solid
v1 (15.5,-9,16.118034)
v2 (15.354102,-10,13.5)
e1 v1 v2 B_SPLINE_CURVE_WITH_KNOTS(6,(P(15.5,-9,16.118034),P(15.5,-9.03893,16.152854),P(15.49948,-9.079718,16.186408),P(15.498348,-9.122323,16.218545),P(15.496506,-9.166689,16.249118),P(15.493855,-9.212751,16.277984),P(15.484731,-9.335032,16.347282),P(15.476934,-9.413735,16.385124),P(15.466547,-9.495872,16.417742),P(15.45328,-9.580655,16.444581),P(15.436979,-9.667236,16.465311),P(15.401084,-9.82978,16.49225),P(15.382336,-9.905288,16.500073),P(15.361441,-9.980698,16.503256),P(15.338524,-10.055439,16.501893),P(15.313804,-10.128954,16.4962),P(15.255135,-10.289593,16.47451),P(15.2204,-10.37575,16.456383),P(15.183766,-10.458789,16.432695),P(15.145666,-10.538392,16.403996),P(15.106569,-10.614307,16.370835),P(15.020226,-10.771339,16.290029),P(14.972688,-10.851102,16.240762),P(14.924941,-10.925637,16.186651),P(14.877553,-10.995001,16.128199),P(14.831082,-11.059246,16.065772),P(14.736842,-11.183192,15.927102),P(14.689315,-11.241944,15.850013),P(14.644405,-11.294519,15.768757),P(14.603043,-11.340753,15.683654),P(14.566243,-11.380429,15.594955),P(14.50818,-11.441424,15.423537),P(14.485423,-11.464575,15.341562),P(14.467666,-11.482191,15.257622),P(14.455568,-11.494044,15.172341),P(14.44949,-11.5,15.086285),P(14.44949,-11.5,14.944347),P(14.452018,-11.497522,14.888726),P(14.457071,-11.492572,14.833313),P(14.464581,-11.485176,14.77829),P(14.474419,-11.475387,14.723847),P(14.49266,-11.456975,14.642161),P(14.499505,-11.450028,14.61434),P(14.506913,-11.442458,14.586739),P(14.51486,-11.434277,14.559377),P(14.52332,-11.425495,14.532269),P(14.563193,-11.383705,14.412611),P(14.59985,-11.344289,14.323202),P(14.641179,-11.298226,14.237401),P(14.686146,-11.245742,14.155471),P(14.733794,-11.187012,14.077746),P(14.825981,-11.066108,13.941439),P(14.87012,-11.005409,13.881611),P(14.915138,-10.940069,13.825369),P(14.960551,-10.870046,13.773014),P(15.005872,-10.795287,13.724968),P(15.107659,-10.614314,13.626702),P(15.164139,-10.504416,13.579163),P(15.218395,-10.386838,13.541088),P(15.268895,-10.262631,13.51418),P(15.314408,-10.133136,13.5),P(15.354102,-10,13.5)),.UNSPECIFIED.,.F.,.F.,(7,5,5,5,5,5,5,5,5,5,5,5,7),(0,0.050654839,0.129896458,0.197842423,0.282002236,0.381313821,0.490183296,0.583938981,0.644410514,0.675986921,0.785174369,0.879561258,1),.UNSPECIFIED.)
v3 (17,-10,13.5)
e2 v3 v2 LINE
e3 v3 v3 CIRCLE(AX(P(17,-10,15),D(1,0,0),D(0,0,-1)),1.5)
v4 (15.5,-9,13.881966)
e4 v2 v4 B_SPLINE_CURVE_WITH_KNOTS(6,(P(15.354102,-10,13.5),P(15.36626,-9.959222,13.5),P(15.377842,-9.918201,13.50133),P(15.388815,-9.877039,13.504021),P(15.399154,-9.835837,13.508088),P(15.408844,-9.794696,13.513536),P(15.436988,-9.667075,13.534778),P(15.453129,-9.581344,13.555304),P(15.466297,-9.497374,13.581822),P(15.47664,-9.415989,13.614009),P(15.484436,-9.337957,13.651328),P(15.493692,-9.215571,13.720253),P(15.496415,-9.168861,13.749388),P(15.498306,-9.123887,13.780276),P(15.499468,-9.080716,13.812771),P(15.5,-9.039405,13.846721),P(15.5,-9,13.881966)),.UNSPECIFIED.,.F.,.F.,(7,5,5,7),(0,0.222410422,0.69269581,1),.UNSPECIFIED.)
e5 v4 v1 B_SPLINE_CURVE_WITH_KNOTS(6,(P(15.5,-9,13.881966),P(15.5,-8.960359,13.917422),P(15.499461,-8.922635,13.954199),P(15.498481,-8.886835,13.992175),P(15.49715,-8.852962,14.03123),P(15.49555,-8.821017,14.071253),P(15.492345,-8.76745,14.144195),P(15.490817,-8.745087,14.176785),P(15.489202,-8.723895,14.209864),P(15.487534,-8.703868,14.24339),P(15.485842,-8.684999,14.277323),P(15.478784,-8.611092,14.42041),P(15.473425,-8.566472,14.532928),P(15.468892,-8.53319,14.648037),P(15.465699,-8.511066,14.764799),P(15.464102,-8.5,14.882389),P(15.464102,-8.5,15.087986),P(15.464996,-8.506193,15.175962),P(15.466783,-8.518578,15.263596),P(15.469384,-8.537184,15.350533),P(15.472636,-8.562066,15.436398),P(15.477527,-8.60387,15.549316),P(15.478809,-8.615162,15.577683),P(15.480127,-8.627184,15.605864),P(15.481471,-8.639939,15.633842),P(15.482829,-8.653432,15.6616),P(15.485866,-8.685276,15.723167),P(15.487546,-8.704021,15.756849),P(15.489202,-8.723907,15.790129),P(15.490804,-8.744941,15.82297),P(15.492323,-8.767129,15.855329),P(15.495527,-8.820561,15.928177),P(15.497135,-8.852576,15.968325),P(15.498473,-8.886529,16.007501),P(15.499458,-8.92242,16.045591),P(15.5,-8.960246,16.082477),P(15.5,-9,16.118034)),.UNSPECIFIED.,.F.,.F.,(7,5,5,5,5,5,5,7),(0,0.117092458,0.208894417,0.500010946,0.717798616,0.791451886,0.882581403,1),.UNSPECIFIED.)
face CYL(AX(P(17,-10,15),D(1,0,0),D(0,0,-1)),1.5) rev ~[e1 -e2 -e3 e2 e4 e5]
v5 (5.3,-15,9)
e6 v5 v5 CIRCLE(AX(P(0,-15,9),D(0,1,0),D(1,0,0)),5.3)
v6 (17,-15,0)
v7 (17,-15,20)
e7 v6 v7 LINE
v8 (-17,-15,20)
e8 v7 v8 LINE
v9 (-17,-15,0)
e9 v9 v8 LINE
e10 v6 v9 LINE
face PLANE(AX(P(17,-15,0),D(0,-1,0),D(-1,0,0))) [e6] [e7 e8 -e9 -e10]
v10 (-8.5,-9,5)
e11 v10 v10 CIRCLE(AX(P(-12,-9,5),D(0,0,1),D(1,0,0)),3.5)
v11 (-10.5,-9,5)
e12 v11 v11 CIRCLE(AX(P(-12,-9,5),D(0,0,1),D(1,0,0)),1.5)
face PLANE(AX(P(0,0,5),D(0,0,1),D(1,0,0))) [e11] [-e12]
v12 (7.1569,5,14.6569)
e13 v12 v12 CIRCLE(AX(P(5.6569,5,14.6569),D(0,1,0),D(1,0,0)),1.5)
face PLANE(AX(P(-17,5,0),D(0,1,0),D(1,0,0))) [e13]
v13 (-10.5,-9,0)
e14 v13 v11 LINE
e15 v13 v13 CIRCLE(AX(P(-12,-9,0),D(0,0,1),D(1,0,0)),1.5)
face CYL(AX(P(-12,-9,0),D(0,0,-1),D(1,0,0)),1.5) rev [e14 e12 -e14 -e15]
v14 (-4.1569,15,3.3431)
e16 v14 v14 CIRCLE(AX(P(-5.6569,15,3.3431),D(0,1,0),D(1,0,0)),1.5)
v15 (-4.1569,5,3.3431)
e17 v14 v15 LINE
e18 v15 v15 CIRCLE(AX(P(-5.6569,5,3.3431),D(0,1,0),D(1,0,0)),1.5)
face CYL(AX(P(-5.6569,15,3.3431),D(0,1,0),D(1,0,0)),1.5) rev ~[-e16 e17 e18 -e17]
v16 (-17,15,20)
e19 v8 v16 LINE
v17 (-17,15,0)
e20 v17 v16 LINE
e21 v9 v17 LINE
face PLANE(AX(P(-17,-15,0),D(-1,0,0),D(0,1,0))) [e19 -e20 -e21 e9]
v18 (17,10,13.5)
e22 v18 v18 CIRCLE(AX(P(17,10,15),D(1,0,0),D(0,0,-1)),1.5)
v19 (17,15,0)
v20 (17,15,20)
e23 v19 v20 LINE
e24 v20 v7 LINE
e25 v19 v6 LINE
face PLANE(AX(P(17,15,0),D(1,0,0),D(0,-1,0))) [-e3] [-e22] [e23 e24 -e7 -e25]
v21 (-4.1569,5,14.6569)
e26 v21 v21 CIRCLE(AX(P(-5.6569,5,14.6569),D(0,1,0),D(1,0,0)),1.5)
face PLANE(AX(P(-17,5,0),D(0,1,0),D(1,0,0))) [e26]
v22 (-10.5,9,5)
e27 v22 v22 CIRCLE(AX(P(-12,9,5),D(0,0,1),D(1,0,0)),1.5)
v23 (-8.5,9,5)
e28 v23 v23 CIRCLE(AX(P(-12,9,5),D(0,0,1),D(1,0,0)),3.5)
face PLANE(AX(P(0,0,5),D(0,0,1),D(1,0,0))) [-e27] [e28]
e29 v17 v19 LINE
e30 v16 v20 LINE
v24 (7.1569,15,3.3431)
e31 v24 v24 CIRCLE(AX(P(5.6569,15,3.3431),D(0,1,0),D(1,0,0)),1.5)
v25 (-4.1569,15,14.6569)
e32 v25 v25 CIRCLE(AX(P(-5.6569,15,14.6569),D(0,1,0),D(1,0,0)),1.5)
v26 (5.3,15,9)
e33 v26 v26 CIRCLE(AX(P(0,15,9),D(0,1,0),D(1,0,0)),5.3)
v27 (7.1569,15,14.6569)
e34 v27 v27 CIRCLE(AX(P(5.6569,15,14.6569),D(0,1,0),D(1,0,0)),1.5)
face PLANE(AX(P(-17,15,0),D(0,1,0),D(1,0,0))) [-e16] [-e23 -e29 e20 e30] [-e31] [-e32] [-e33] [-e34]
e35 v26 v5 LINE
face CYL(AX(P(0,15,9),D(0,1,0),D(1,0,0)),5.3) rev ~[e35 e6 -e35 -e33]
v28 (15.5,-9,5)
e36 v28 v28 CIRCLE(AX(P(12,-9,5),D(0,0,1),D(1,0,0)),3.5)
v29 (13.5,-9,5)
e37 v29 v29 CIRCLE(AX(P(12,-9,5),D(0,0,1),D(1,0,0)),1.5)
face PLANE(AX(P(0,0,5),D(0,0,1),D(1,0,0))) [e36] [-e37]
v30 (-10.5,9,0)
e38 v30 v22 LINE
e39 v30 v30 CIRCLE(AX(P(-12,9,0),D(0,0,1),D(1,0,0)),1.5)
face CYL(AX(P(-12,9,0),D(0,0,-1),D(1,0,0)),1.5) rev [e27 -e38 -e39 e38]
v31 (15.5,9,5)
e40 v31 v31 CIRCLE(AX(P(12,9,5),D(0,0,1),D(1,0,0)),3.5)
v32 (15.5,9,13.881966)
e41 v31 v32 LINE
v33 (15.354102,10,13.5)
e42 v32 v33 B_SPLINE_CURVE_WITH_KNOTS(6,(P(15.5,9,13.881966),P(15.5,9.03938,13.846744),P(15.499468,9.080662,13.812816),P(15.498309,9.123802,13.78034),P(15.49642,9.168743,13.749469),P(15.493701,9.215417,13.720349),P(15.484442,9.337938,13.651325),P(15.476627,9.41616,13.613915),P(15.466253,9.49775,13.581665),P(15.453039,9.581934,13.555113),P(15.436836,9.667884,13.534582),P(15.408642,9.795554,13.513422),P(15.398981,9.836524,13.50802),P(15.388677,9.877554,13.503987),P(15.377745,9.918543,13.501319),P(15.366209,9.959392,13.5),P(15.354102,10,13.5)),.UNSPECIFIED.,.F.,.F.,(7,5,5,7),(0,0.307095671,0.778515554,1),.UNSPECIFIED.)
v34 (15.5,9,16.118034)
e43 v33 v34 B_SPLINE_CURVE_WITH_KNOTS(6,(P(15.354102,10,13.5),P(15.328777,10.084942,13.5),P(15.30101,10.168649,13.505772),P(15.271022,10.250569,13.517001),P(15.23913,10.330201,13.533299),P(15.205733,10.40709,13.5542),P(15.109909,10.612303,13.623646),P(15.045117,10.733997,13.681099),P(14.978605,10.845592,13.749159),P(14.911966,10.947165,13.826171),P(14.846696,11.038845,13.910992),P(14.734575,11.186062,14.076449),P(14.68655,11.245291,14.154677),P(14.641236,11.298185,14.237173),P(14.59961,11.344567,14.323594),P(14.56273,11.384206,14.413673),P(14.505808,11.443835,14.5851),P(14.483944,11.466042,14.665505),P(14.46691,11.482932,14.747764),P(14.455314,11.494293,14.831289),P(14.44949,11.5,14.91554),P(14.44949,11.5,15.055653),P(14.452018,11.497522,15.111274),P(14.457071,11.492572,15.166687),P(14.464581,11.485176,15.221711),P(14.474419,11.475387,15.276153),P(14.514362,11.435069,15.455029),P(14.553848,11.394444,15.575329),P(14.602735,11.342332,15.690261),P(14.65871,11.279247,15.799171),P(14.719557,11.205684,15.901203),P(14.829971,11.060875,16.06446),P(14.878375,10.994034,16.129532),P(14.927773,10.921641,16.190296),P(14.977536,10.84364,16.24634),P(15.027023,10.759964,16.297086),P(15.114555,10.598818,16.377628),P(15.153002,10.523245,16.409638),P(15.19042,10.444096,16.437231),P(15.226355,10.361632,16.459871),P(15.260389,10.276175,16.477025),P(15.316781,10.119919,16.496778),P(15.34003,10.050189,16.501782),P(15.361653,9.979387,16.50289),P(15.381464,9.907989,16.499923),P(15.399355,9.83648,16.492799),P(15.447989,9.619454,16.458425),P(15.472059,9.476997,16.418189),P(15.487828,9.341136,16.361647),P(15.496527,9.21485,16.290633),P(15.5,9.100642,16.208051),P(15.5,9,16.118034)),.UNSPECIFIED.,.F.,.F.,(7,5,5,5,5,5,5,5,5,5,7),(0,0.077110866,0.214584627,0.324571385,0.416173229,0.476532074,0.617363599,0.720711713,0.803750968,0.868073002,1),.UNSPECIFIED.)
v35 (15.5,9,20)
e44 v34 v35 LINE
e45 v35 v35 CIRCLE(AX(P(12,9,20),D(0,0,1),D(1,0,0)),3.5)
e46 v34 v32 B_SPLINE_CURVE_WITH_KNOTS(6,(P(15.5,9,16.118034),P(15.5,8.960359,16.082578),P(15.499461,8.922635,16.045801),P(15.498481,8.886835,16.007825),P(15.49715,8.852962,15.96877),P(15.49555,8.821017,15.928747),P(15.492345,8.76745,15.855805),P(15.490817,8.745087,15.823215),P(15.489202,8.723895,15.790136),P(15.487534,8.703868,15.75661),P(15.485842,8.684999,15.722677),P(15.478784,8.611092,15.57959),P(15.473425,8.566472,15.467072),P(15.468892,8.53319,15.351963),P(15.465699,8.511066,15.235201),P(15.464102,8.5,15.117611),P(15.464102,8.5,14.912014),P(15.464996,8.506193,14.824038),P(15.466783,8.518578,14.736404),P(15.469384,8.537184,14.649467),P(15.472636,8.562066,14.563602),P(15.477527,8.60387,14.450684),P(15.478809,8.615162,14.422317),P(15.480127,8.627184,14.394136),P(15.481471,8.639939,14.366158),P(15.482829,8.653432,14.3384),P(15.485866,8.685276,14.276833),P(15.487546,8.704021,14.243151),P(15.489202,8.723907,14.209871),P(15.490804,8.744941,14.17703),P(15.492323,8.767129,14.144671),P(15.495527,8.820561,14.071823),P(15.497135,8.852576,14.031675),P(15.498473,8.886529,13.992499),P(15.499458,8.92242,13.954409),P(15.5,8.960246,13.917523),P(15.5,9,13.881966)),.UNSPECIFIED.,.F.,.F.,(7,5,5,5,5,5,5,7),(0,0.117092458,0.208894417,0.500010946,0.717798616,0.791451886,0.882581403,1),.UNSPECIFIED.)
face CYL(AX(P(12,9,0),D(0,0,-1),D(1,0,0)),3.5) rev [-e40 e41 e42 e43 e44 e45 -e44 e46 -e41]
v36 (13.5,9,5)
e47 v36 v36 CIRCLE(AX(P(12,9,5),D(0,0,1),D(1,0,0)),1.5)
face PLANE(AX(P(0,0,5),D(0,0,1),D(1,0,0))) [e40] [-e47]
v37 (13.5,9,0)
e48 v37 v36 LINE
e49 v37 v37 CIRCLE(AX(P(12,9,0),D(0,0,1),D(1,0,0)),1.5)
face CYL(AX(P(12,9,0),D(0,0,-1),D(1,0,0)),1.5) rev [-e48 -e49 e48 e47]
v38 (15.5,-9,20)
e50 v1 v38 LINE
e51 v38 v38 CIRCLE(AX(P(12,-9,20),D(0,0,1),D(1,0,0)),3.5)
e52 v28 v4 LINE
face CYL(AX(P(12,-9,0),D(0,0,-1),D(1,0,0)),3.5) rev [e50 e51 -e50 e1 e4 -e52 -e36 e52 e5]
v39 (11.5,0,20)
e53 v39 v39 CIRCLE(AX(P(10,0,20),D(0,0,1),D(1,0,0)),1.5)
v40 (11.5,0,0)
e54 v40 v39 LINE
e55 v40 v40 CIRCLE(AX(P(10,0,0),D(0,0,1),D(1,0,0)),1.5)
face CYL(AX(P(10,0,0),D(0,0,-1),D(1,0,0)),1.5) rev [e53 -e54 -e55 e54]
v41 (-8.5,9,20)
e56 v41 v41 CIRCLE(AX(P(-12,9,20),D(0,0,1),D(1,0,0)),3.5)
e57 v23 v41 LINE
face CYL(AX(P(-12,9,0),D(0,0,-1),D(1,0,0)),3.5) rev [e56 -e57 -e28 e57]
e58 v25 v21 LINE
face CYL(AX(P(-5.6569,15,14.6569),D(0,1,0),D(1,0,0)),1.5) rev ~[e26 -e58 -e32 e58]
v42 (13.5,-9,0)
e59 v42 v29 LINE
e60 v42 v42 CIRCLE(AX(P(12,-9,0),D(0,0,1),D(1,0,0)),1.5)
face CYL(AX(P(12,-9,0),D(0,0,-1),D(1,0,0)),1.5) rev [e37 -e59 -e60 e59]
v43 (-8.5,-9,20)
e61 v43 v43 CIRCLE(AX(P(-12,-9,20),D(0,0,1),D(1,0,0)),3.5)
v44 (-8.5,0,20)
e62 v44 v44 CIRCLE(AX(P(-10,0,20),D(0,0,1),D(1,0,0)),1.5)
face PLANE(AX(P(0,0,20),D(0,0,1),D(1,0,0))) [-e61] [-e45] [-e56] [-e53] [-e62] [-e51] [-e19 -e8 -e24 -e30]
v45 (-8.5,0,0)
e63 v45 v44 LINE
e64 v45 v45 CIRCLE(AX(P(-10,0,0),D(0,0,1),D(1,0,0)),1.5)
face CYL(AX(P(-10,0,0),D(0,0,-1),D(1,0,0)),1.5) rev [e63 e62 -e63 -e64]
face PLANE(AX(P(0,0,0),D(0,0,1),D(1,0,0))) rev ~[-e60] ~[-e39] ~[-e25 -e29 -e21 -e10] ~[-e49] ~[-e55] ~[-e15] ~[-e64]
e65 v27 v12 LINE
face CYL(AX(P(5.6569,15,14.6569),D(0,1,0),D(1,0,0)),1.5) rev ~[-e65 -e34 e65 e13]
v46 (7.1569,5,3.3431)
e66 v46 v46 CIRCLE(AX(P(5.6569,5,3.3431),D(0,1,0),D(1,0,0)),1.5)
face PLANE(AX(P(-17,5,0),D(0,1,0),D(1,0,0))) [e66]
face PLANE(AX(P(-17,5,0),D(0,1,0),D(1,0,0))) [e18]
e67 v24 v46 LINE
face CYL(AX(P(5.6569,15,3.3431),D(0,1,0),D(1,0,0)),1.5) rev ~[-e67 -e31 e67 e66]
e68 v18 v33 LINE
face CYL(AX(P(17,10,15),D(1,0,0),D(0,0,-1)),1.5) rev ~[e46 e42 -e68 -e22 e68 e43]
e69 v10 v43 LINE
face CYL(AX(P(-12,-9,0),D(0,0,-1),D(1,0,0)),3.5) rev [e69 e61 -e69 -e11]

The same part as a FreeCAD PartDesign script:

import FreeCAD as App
import Part
import Sketcher
from FreeCAD import Vector
Q = App.Units.Quantity

doc = App.newDocument("Part")
body = doc.addObject("PartDesign::Body", "Body")

# Sketch on XY plane
sketch1 = body.newObject("Sketcher::SketchObject", "Sketch")
sketch1.AttachmentSupport = (doc.getObject("XY_Plane"), [""])
sketch1.MapMode = "FlatFace"
sketch1.addGeometry(Part.LineSegment(Vector(-17, -15, 0), Vector(17, -15, 0)), False)
sketch1.addGeometry(Part.LineSegment(Vector(17, -15, 0), Vector(17, 15, 0)), False)
sketch1.addGeometry(Part.LineSegment(Vector(17, 15, 0), Vector(-17, 15, 0)), False)
sketch1.addGeometry(Part.LineSegment(Vector(-17, 15, 0), Vector(-17, -15, 0)), False)
sketch1.addGeometry(Part.Circle(Vector(-12, -9, 0), Vector(0, 0, 1), 3.5), False)
sketch1.addGeometry(Part.Circle(Vector(12, -9, 0), Vector(0, 0, 1), 3.5), False)
sketch1.addGeometry(Part.Circle(Vector(-10, 0, 0), Vector(0, 0, 1), 1.5), False)
sketch1.addGeometry(Part.Circle(Vector(-12, 9, 0), Vector(0, 0, 1), 3.5), False)
sketch1.addGeometry(Part.Circle(Vector(10, 0, 0), Vector(0, 0, 1), 1.5), False)
sketch1.addGeometry(Part.Circle(Vector(12, 9, 0), Vector(0, 0, 1), 3.5), False)
sketch1.addConstraint(Sketcher.Constraint("Coincident", 0, 2, 1, 1))
sketch1.addConstraint(Sketcher.Constraint("Coincident", 1, 2, 2, 1))
sketch1.addConstraint(Sketcher.Constraint("Coincident", 2, 2, 3, 1))
sketch1.addConstraint(Sketcher.Constraint("Coincident", 3, 2, 0, 1))
sketch1.addConstraint(Sketcher.Constraint("Horizontal", 0))
sketch1.addConstraint(Sketcher.Constraint("Vertical", 1))
sketch1.addConstraint(Sketcher.Constraint("Horizontal", 2))
sketch1.addConstraint(Sketcher.Constraint("Vertical", 3))
sketch1.addConstraint(Sketcher.Constraint("Equal", 4, 5))
sketch1.addConstraint(Sketcher.Constraint("Equal", 5, 7))
sketch1.addConstraint(Sketcher.Constraint("Equal", 6, 8))
sketch1.addConstraint(Sketcher.Constraint("Equal", 7, 9))
sketch1.addConstraint(Sketcher.Constraint("Symmetric", 5, 3, 7, 3, -1, 1))
sketch1.addConstraint(Sketcher.Constraint("Symmetric", 6, 3, 8, 3, -1, 1))
sketch1.addConstraint(Sketcher.Constraint("Symmetric", 4, 3, 9, 3, -1, 1))
sketch1.addConstraint(Sketcher.Constraint("Symmetric", 0, 2, 2, 2, -1, 1))
sketch1.addConstraint(Sketcher.Constraint("Symmetric", 4, 3, 5, 3, -2))
sketch1.addConstraint(Sketcher.Constraint("PointOnObject", 6, 3, -1))
sketch1.addConstraint(Sketcher.Constraint("Diameter", 6, Q("3 mm")))
sketch1.addConstraint(Sketcher.Constraint("DistanceX", 0, 1, 0, 2, Q("34 mm")))
sketch1.addConstraint(Sketcher.Constraint("DistanceY", 1, 1, 1, 2, Q("30 mm")))
sketch1.addConstraint(Sketcher.Constraint("Diameter", 4, Q("7 mm")))
sketch1.addConstraint(Sketcher.Constraint("DistanceX", 6, 3, -1, 1, Q("10 mm")))
sketch1.addConstraint(Sketcher.Constraint("DistanceX", 4, 3, 5, 3, Q("24 mm")))
sketch1.addConstraint(Sketcher.Constraint("DistanceY", 4, 3, 7, 3, Q("18 mm")))
pad1 = body.newObject("PartDesign::Pad", "Pad")
pad1.Profile = sketch1
pad1.Length = 20

# Sketch on XY plane
sketch2 = body.newObject("Sketcher::SketchObject", "Sketch001")
sketch2.AttachmentSupport = (doc.getObject("XY_Plane"), [""])
sketch2.MapMode = "FlatFace"
sketch2.addGeometry(Part.Circle(Vector(12, 9, 0), Vector(0, 0, 1), 3.5), False)
sketch2.addGeometry(Part.Circle(Vector(12, 9, 0), Vector(0, 0, 1), 1.5), False)
sketch2.addGeometry(Part.Circle(Vector(-12, 9, 0), Vector(0, 0, 1), 3.5), False)
sketch2.addGeometry(Part.Circle(Vector(-12, 9, 0), Vector(0, 0, 1), 1.5), False)
sketch2.addGeometry(Part.Circle(Vector(-12, -9, 0), Vector(0, 0, 1), 3.5), False)
sketch2.addGeometry(Part.Circle(Vector(-12, -9, 0), Vector(0, 0, 1), 1.5), False)
sketch2.addGeometry(Part.Circle(Vector(12, -9, 0), Vector(0, 0, 1), 3.5), False)
sketch2.addGeometry(Part.Circle(Vector(12, -9, 0), Vector(0, 0, 1), 1.5), False)
sketch2.addConstraint(Sketcher.Constraint("Coincident", 1, 3, 0, 3))
sketch2.addConstraint(Sketcher.Constraint("Coincident", 3, 3, 2, 3))
sketch2.addConstraint(Sketcher.Constraint("Coincident", 5, 3, 4, 3))
sketch2.addConstraint(Sketcher.Constraint("Coincident", 7, 3, 6, 3))
sketch2.addConstraint(Sketcher.Constraint("Equal", 0, 2))
sketch2.addConstraint(Sketcher.Constraint("Equal", 1, 3))
sketch2.addConstraint(Sketcher.Constraint("Equal", 2, 4))
sketch2.addConstraint(Sketcher.Constraint("Equal", 3, 5))
sketch2.addConstraint(Sketcher.Constraint("Equal", 4, 6))
sketch2.addConstraint(Sketcher.Constraint("Equal", 5, 7))
sketch2.addConstraint(Sketcher.Constraint("Symmetric", 0, 3, 4, 3, -1, 1))
sketch2.addConstraint(Sketcher.Constraint("Symmetric", 2, 3, 6, 3, -1, 1))
sketch2.addConstraint(Sketcher.Constraint("Symmetric", 0, 3, 2, 3, -2))
sketch2.addConstraint(Sketcher.Constraint("Diameter", 1, Q("3 mm")))
sketch2.addConstraint(Sketcher.Constraint("Diameter", 0, Q("7 mm")))
sketch2.addConstraint(Sketcher.Constraint("DistanceX", 2, 3, 0, 3, Q("24 mm")))
sketch2.addConstraint(Sketcher.Constraint("DistanceY", 4, 3, 2, 3, Q("18 mm")))
pad2 = body.newObject("PartDesign::Pad", "Pad001")
pad2.Profile = sketch2
pad2.Length = 5

# Sketch on XZ plane
sketch3 = body.newObject("Sketcher::SketchObject", "Sketch002")
sketch3.AttachmentSupport = (doc.getObject("XZ_Plane"), [""])
sketch3.MapMode = "FlatFace"
sketch3.AttachmentOffset = App.Placement(Vector(0, 0, -15), App.Rotation())
sketch3.addGeometry(Part.Circle(Vector(0, 9, 0), Vector(0, 0, 1), 5.3), False)
sketch3.addConstraint(Sketcher.Constraint("PointOnObject", 0, 3, -2))
sketch3.addConstraint(Sketcher.Constraint("Diameter", 0, Q("10.6 mm")))
sketch3.addConstraint(Sketcher.Constraint("DistanceY", -1, 1, 0, 3, Q("9 mm")))
pocket1 = body.newObject("PartDesign::Pocket", "Pocket")
pocket1.Profile = sketch3
pocket1.Type = "ThroughAll"
pocket1.Reversed = True

# Sketch on XZ plane
sketch4 = body.newObject("Sketcher::SketchObject", "Sketch003")
sketch4.AttachmentSupport = (doc.getObject("XZ_Plane"), [""])
sketch4.MapMode = "FlatFace"
sketch4.AttachmentOffset = App.Placement(Vector(0, 0, -15), App.Rotation())
sketch4.addGeometry(Part.Circle(Vector(5.6569, 14.6569, 0), Vector(0, 0, 1), 1.5), False)
sketch4.addGeometry(Part.Circle(Vector(5.6569, 3.3431, 0), Vector(0, 0, 1), 1.5), False)
sketch4.addGeometry(Part.Circle(Vector(-5.6569, 3.3431, 0), Vector(0, 0, 1), 1.5), False)
sketch4.addGeometry(Part.Circle(Vector(-5.6569, 14.6569, 0), Vector(0, 0, 1), 1.5), False)
sketch4.addConstraint(Sketcher.Constraint("Equal", 0, 1))
sketch4.addConstraint(Sketcher.Constraint("Equal", 1, 2))
sketch4.addConstraint(Sketcher.Constraint("Equal", 2, 3))
sketch4.addConstraint(Sketcher.Constraint("Symmetric", 1, 3, 2, 3, -2))
sketch4.addConstraint(Sketcher.Constraint("Symmetric", 0, 3, 3, 3, -2))
sketch4.addConstraint(Sketcher.Constraint("Vertical", 0, 3, 1, 3))
sketch4.addConstraint(Sketcher.Constraint("Diameter", 0, Q("3 mm")))
sketch4.addConstraint(Sketcher.Constraint("DistanceX", -1, 1, 0, 3, Q("5.657 mm")))
sketch4.addConstraint(Sketcher.Constraint("DistanceY", -1, 1, 0, 3, Q("14.657 mm")))
sketch4.addConstraint(Sketcher.Constraint("DistanceY", -1, 1, 1, 3, Q("3.343 mm")))
pocket2 = body.newObject("PartDesign::Pocket", "Pocket001")
pocket2.Profile = sketch4
pocket2.Length = 10
pocket2.Reversed = True

# Sketch on YZ plane
sketch5 = body.newObject("Sketcher::SketchObject", "Sketch004")
sketch5.AttachmentSupport = (doc.getObject("YZ_Plane"), [""])
sketch5.MapMode = "FlatFace"
sketch5.AttachmentOffset = App.Placement(Vector(0, 0, 17), App.Rotation())
sketch5.addGeometry(Part.Circle(Vector(10, 15, 0), Vector(0, 0, 1), 1.5), False)
sketch5.addGeometry(Part.Circle(Vector(-10, 15, 0), Vector(0, 0, 1), 1.5), False)
sketch5.addConstraint(Sketcher.Constraint("Equal", 0, 1))
sketch5.addConstraint(Sketcher.Constraint("Symmetric", 0, 3, 1, 3, -2))
sketch5.addConstraint(Sketcher.Constraint("Diameter", 0, Q("3 mm")))
sketch5.addConstraint(Sketcher.Constraint("DistanceX", -1, 1, 0, 3, Q("10 mm")))
sketch5.addConstraint(Sketcher.Constraint("DistanceY", -1, 1, 0, 3, Q("15 mm")))
pocket3 = body.newObject("PartDesign::Pocket", "Pocket002")
pocket3.Profile = sketch5
pocket3.Length = 5

doc.recompute()
